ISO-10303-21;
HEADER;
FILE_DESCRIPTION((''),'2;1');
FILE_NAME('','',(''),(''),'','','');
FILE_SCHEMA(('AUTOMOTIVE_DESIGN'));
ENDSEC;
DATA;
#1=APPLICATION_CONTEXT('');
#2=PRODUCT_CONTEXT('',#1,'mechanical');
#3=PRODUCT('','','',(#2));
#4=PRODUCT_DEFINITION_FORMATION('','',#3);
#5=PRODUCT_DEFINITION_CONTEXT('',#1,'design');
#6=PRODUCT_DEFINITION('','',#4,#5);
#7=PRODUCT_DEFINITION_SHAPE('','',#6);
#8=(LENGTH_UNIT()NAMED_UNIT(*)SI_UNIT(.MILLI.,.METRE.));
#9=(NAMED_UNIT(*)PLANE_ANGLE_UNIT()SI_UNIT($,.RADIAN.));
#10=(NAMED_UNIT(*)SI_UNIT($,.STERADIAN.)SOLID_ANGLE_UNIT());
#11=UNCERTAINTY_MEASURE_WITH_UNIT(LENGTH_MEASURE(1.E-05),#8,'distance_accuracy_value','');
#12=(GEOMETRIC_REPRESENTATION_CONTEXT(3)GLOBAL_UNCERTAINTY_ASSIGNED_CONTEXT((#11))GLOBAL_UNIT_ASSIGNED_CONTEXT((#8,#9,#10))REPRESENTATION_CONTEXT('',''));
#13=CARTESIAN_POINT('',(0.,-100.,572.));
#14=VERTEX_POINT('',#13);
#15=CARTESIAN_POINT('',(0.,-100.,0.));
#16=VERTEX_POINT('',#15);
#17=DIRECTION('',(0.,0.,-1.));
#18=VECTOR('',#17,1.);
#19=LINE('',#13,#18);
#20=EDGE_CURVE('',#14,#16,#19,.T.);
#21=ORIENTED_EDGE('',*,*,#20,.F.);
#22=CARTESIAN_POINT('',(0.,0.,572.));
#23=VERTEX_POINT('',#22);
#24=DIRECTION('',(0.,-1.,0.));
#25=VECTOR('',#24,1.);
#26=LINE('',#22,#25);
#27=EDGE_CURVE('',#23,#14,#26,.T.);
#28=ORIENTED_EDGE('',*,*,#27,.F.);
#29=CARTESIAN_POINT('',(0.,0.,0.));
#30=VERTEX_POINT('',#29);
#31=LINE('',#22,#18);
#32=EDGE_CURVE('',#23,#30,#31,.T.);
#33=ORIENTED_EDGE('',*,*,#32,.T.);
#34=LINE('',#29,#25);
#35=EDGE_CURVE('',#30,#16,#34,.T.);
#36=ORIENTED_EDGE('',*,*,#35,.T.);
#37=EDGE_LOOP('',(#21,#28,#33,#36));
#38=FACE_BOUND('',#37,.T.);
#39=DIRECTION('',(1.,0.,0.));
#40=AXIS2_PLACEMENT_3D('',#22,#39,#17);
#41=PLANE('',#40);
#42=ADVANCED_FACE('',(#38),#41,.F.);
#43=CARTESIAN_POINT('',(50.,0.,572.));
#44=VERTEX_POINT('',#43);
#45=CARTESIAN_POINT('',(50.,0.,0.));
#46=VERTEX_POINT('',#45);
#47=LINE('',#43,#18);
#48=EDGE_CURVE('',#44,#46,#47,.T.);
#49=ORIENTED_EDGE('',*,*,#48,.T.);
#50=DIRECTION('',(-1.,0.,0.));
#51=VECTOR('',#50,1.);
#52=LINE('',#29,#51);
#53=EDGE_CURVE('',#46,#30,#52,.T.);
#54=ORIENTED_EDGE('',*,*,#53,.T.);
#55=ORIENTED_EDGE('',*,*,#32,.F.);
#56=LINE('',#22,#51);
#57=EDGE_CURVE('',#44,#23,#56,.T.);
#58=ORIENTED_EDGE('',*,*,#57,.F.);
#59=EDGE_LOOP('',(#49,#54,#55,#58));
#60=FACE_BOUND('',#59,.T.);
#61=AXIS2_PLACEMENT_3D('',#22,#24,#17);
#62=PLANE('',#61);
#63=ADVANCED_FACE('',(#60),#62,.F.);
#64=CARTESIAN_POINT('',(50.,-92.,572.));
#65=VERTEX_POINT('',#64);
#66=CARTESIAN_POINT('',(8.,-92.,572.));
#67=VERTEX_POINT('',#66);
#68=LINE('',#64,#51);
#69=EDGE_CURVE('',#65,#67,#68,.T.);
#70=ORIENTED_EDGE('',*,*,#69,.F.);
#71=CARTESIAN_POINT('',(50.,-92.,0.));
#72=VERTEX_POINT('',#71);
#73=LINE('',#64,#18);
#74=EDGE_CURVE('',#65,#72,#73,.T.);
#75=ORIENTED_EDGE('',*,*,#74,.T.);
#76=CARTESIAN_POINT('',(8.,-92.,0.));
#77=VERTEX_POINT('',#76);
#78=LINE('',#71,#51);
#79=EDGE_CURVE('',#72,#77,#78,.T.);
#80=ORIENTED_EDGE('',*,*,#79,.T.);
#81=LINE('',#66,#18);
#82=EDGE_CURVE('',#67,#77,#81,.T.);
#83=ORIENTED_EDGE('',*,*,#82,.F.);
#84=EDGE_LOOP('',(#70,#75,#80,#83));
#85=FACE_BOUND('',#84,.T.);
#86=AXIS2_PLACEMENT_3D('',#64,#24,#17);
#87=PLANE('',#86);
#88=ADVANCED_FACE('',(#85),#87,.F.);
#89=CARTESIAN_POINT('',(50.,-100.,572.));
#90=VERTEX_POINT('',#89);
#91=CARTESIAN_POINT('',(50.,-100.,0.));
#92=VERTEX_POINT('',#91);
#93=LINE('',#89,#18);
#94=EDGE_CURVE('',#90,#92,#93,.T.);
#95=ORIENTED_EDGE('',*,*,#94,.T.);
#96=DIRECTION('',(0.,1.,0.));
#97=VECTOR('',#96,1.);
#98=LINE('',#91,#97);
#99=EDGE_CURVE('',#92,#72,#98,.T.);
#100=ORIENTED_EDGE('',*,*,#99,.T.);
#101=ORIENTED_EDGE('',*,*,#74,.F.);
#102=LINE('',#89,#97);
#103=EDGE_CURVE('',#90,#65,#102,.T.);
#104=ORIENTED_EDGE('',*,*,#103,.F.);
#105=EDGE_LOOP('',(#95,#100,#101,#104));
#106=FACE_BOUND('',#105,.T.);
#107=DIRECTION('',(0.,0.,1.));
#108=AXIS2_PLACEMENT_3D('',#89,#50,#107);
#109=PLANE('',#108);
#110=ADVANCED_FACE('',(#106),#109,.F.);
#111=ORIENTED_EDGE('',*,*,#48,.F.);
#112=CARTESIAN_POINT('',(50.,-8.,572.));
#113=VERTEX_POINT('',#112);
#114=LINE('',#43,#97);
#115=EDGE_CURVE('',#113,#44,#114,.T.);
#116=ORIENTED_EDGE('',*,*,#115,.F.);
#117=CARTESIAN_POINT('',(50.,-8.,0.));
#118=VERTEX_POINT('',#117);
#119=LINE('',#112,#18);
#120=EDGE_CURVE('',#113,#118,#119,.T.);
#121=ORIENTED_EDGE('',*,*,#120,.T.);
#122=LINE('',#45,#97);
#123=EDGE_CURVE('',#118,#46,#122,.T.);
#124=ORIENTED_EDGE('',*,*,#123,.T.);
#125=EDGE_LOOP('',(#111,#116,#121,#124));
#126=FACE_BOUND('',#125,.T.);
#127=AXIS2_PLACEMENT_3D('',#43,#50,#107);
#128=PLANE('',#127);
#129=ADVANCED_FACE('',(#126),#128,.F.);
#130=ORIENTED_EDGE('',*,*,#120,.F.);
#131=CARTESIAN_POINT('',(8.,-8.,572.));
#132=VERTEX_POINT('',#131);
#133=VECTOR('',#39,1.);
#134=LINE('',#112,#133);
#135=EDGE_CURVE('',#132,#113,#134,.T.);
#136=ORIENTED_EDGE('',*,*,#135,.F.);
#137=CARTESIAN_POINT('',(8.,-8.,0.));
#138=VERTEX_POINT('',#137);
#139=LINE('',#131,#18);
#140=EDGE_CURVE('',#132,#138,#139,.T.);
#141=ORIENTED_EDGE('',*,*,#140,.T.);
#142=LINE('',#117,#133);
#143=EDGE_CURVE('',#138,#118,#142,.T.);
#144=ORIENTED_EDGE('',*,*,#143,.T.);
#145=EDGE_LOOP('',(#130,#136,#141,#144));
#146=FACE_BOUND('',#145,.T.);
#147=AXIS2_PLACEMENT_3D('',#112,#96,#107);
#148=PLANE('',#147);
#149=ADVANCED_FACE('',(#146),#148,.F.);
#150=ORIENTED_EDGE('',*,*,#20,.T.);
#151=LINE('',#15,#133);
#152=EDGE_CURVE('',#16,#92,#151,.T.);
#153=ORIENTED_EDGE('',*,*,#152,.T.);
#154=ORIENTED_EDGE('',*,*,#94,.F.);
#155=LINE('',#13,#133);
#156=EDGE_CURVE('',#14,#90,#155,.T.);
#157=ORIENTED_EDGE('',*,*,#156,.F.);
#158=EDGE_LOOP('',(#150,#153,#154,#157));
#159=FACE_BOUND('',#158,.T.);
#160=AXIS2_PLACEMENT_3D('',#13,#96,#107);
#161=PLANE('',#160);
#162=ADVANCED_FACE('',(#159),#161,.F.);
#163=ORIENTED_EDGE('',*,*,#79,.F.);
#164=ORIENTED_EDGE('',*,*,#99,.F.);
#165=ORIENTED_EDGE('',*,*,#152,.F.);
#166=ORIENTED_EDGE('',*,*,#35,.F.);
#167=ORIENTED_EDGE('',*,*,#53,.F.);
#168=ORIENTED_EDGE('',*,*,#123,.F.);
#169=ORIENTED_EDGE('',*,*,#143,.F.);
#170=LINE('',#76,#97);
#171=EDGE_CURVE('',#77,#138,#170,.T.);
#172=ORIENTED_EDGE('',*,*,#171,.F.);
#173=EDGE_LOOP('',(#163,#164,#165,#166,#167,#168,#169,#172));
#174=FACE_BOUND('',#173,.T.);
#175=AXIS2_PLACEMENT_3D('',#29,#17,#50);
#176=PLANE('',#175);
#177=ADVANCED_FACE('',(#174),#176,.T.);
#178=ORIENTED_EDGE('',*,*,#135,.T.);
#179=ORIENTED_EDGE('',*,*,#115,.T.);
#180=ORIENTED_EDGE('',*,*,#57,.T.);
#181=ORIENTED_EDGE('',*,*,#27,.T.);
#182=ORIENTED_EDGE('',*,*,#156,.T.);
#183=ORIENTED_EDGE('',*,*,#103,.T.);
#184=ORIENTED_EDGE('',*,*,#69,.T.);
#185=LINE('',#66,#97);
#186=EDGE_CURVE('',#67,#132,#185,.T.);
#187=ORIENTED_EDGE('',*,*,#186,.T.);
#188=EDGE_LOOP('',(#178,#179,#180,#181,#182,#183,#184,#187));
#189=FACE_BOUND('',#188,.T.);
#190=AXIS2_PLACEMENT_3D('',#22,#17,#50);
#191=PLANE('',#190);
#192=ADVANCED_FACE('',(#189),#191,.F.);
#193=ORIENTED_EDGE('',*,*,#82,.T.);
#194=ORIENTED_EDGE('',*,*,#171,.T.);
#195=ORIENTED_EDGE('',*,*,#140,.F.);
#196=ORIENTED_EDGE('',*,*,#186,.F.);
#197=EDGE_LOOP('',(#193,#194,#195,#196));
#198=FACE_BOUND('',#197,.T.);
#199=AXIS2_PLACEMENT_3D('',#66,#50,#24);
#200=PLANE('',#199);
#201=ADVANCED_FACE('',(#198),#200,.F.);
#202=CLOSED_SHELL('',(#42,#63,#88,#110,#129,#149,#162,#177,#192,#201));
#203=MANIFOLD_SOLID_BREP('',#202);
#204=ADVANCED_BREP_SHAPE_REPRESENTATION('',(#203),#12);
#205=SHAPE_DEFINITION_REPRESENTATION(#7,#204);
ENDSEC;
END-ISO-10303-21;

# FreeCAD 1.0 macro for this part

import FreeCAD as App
import Part
import Sketcher

V = App.Vector
Q = App.Units.Quantity

doc = App.newDocument("Part")
body = doc.addObject("PartDesign::Body", "Body")

# Sketch on XY plane
sketch1 = body.newObject("Sketcher::SketchObject", "Sketch")
sketch1.AttachmentSupport = (doc.getObject("XY_Plane"), [""])
sketch1.MapMode = "FlatFace"
sketch1.addGeometry([
    Part.LineSegment(V(0, 0, 0), V(0, -100, 0)),  # 0
    Part.LineSegment(V(0, -100, 0), V(50, -100, 0)),  # 1
    Part.LineSegment(V(50, -100, 0), V(50, -92, 0)),  # 2
    Part.LineSegment(V(50, -92, 0), V(8, -92, 0)),  # 3
    Part.LineSegment(V(8, -92, 0), V(8, -8, 0)),  # 4
    Part.LineSegment(V(8, -8, 0), V(50, -8, 0)),  # 5
    Part.LineSegment(V(50, -8, 0), V(50, 0, 0)),  # 6
    Part.LineSegment(V(50, 0, 0), V(0, 0, 0)),  # 7
], False)
sketch1.addConstraint([
    Sketcher.Constraint("Coincident", 0, 2, 1, 1),
    Sketcher.Constraint("Coincident", 1, 2, 2, 1),
    Sketcher.Constraint("Coincident", 2, 2, 3, 1),
    Sketcher.Constraint("Coincident", 3, 2, 4, 1),
    Sketcher.Constraint("Coincident", 4, 2, 5, 1),
    Sketcher.Constraint("Coincident", 5, 2, 6, 1),
    Sketcher.Constraint("Coincident", 6, 2, 7, 1),
    Sketcher.Constraint("Coincident", 7, 2, 0, 1),
    Sketcher.Constraint("Vertical", 0),
    Sketcher.Constraint("Horizontal", 1),
    Sketcher.Constraint("Vertical", 2),
    Sketcher.Constraint("Horizontal", 3),
    Sketcher.Constraint("Vertical", 4),
    Sketcher.Constraint("Horizontal", 5),
    Sketcher.Constraint("Vertical", 6),
    Sketcher.Constraint("Horizontal", 7),
    Sketcher.Constraint("Coincident", 7, 2, -1, 1),
    Sketcher.Constraint("Vertical", 2, 2, 5, 2),
    Sketcher.Constraint("Equal", 2, 6),
    Sketcher.Constraint("DistanceX", 1, 1, 1, 2, Q("50 mm")),
    Sketcher.Constraint("DistanceX", 3, 2, 3, 1, Q("42 mm")),
    Sketcher.Constraint("DistanceY", 0, 2, 0, 1, Q("100 mm")),
    Sketcher.Constraint("DistanceY", 2, 1, 2, 2, Q("8 mm")),
])
pad1 = body.newObject("PartDesign::Pad", "Pad")
pad1.Profile = sketch1
pad1.Length = 572

doc.recompute()
